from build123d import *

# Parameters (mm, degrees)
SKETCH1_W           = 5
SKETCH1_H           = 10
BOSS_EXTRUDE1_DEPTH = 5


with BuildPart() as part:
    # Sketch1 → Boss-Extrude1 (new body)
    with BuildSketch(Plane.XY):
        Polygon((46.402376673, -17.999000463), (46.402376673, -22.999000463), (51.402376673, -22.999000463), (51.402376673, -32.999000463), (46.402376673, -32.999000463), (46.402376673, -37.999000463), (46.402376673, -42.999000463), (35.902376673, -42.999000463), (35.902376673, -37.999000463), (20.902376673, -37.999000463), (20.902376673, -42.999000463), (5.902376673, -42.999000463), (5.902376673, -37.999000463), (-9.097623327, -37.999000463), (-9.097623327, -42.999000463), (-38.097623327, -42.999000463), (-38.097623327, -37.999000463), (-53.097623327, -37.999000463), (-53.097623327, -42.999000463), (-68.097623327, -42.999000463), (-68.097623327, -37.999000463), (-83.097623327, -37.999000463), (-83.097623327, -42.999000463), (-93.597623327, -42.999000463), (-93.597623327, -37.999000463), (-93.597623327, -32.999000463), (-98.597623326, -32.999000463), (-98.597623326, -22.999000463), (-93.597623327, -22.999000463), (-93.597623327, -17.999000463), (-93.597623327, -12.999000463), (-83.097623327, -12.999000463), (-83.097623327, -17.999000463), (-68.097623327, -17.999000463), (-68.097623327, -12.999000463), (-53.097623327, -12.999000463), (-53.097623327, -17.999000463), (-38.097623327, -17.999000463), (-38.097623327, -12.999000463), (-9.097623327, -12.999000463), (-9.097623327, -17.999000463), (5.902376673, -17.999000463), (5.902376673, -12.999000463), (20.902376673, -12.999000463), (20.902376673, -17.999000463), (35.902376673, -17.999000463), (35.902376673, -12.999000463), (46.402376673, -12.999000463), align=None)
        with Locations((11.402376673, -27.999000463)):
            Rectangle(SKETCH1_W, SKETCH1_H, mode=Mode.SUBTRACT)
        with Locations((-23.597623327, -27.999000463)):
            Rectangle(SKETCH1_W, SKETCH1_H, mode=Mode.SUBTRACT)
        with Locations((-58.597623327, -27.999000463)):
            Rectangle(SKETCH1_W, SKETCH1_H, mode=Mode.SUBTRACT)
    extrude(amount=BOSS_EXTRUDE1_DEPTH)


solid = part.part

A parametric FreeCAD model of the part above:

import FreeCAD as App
import Part
import Sketcher
from FreeCAD import Vector
Q = App.Units.Quantity

doc = App.newDocument("Part")
body = doc.addObject("PartDesign::Body", "Body")

# Sketch on XY plane
sketch1 = body.newObject("Sketcher::SketchObject", "Sketch")
sketch1.AttachmentSupport = (doc.getObject("XY_Plane"), [""])
sketch1.MapMode = "FlatFace"
sketch1.addGeometry([
    Part.LineSegment(Vector(46.4, -23, 0), Vector(46.4, -13, 0)),  # 0
    Part.LineSegment(Vector(46.4, -13, 0), Vector(35.9, -13, 0)),  # 1
    Part.LineSegment(Vector(35.9, -13, 0), Vector(35.9, -18, 0)),  # 2
    Part.LineSegment(Vector(35.9, -18, 0), Vector(20.9, -18, 0)),  # 3
    Part.LineSegment(Vector(20.9, -18, 0), Vector(20.9, -13, 0)),  # 4
    Part.LineSegment(Vector(20.9, -13, 0), Vector(5.9, -13, 0)),  # 5
    Part.LineSegment(Vector(5.9, -13, 0), Vector(5.9, -18, 0)),  # 6
    Part.LineSegment(Vector(5.9, -18, 0), Vector(-9.1, -18, 0)),  # 7
    Part.LineSegment(Vector(-9.1, -18, 0), Vector(-9.1, -13, 0)),  # 8
    Part.LineSegment(Vector(-9.1, -13, 0), Vector(-38.1, -13, 0)),  # 9
    Part.LineSegment(Vector(-38.1, -13, 0), Vector(-38.1, -18, 0)),  # 10
    Part.LineSegment(Vector(-38.1, -18, 0), Vector(-53.1, -18, 0)),  # 11
    Part.LineSegment(Vector(-53.1, -18, 0), Vector(-53.1, -13, 0)),  # 12
    Part.LineSegment(Vector(-53.1, -13, 0), Vector(-68.1, -13, 0)),  # 13
    Part.LineSegment(Vector(-68.1, -13, 0), Vector(-68.1, -18, 0)),  # 14
    Part.LineSegment(Vector(-68.1, -18, 0), Vector(-83.1, -18, 0)),  # 15
    Part.LineSegment(Vector(-83.1, -18, 0), Vector(-83.1, -13, 0)),  # 16
    Part.LineSegment(Vector(-83.1, -13, 0), Vector(-93.6, -13, 0)),  # 17
    Part.LineSegment(Vector(-93.6, -13, 0), Vector(-93.6, -23, 0)),  # 18
    Part.LineSegment(Vector(-93.6, -23, 0), Vector(-98.6, -23, 0)),  # 19
    Part.LineSegment(Vector(-98.6, -23, 0), Vector(-98.6, -33, 0)),  # 20
    Part.LineSegment(Vector(-98.6, -33, 0), Vector(-93.6, -33, 0)),  # 21
    Part.LineSegment(Vector(-93.6, -33, 0), Vector(-93.6, -43, 0)),  # 22
    Part.LineSegment(Vector(-93.6, -43, 0), Vector(-83.1, -43, 0)),  # 23
    Part.LineSegment(Vector(-83.1, -43, 0), Vector(-83.1, -38, 0)),  # 24
    Part.LineSegment(Vector(-83.1, -38, 0), Vector(-68.1, -38, 0)),  # 25
    Part.LineSegment(Vector(-68.1, -38, 0), Vector(-68.1, -43, 0)),  # 26
    Part.LineSegment(Vector(-68.1, -43, 0), Vector(-53.1, -43, 0)),  # 27
    Part.LineSegment(Vector(-53.1, -43, 0), Vector(-53.1, -38, 0)),  # 28
    Part.LineSegment(Vector(-53.1, -38, 0), Vector(-38.1, -38, 0)),  # 29
    Part.LineSegment(Vector(-38.1, -38, 0), Vector(-38.1, -43, 0)),  # 30
    Part.LineSegment(Vector(-38.1, -43, 0), Vector(-9.1, -43, 0)),  # 31
    Part.LineSegment(Vector(-9.1, -43, 0), Vector(-9.1, -38, 0)),  # 32
    Part.LineSegment(Vector(-9.1, -38, 0), Vector(5.9, -38, 0)),  # 33
    Part.LineSegment(Vector(5.9, -38, 0), Vector(5.9, -43, 0)),  # 34
    Part.LineSegment(Vector(5.9, -43, 0), Vector(20.9, -43, 0)),  # 35
    Part.LineSegment(Vector(20.9, -43, 0), Vector(20.9, -38, 0)),  # 36
    Part.LineSegment(Vector(20.9, -38, 0), Vector(35.9, -38, 0)),  # 37
    Part.LineSegment(Vector(35.9, -38, 0), Vector(35.9, -43, 0)),  # 38
    Part.LineSegment(Vector(35.9, -43, 0), Vector(46.4, -43, 0)),  # 39
    Part.LineSegment(Vector(46.4, -43, 0), Vector(46.4, -33, 0)),  # 40
    Part.LineSegment(Vector(46.4, -33, 0), Vector(51.4, -33, 0)),  # 41
    Part.LineSegment(Vector(51.4, -33, 0), Vector(51.4, -23, 0)),  # 42
    Part.LineSegment(Vector(51.4, -23, 0), Vector(46.4, -23, 0)),  # 43
    Part.LineSegment(Vector(8.9, -33, 0), Vector(8.9, -23, 0)),  # 44
    Part.LineSegment(Vector(8.9, -23, 0), Vector(13.9, -23, 0)),  # 45
    Part.LineSegment(Vector(13.9, -23, 0), Vector(13.9, -33, 0)),  # 46
    Part.LineSegment(Vector(13.9, -33, 0), Vector(8.9, -33, 0)),  # 47
    Part.LineSegment(Vector(-26.1, -33, 0), Vector(-26.1, -23, 0)),  # 48
    Part.LineSegment(Vector(-26.1, -23, 0), Vector(-21.1, -23, 0)),  # 49
    Part.LineSegment(Vector(-21.1, -23, 0), Vector(-21.1, -33, 0)),  # 50
    Part.LineSegment(Vector(-21.1, -33, 0), Vector(-26.1, -33, 0)),  # 51
    Part.LineSegment(Vector(-61.1, -33, 0), Vector(-61.1, -23, 0)),  # 52
    Part.LineSegment(Vector(-61.1, -23, 0), Vector(-56.1, -23, 0)),  # 53
    Part.LineSegment(Vector(-56.1, -23, 0), Vector(-56.1, -33, 0)),  # 54
    Part.LineSegment(Vector(-56.1, -33, 0), Vector(-61.1, -33, 0)),  # 55
], False)
sketch1.addConstraint([
    Sketcher.Constraint("Coincident", 0, 2, 1, 1),
    Sketcher.Constraint("Coincident", 1, 2, 2, 1),
    Sketcher.Constraint("Coincident", 2, 2, 3, 1),
    Sketcher.Constraint("Coincident", 3, 2, 4, 1),
    Sketcher.Constraint("Coincident", 4, 2, 5, 1),
    Sketcher.Constraint("Coincident", 5, 2, 6, 1),
    Sketcher.Constraint("Coincident", 6, 2, 7, 1),
    Sketcher.Constraint("Coincident", 7, 2, 8, 1),
    Sketcher.Constraint("Coincident", 8, 2, 9, 1),
    Sketcher.Constraint("Coincident", 9, 2, 10, 1),
    Sketcher.Constraint("Coincident", 10, 2, 11, 1),
    Sketcher.Constraint("Coincident", 11, 2, 12, 1),
    Sketcher.Constraint("Coincident", 12, 2, 13, 1),
    Sketcher.Constraint("Coincident", 13, 2, 14, 1),
    Sketcher.Constraint("Coincident", 14, 2, 15, 1),
    Sketcher.Constraint("Coincident", 15, 2, 16, 1),
    Sketcher.Constraint("Coincident", 16, 2, 17, 1),
    Sketcher.Constraint("Coincident", 17, 2, 18, 1),
    Sketcher.Constraint("Coincident", 18, 2, 19, 1),
    Sketcher.Constraint("Coincident", 19, 2, 20, 1),
    Sketcher.Constraint("Coincident", 20, 2, 21, 1),
    Sketcher.Constraint("Coincident", 21, 2, 22, 1),
    Sketcher.Constraint("Coincident", 22, 2, 23, 1),
    Sketcher.Constraint("Coincident", 23, 2, 24, 1),
    Sketcher.Constraint("Coincident", 24, 2, 25, 1),
    Sketcher.Constraint("Coincident", 25, 2, 26, 1),
    Sketcher.Constraint("Coincident", 26, 2, 27, 1),
    Sketcher.Constraint("Coincident", 27, 2, 28, 1),
    Sketcher.Constraint("Coincident", 28, 2, 29, 1),
    Sketcher.Constraint("Coincident", 29, 2, 30, 1),
    Sketcher.Constraint("Coincident", 30, 2, 31, 1),
    Sketcher.Constraint("Coincident", 31, 2, 32, 1),
    Sketcher.Constraint("Coincident", 32, 2, 33, 1),
    Sketcher.Constraint("Coincident", 33, 2, 34, 1),
    Sketcher.Constraint("Coincident", 34, 2, 35, 1),
    Sketcher.Constraint("Coincident", 35, 2, 36, 1),
    Sketcher.Constraint("Coincident", 36, 2, 37, 1),
    Sketcher.Constraint("Coincident", 37, 2, 38, 1),
    Sketcher.Constraint("Coincident", 38, 2, 39, 1),
    Sketcher.Constraint("Coincident", 39, 2, 40, 1),
    Sketcher.Constraint("Coincident", 40, 2, 41, 1),
    Sketcher.Constraint("Coincident", 41, 2, 42, 1),
    Sketcher.Constraint("Coincident", 42, 2, 43, 1),
    Sketcher.Constraint("Coincident", 43, 2, 0, 1),
    Sketcher.Constraint("Coincident", 44, 2, 45, 1),
    Sketcher.Constraint("Coincident", 45, 2, 46, 1),
    Sketcher.Constraint("Coincident", 46, 2, 47, 1),
    Sketcher.Constraint("Coincident", 47, 2, 44, 1),
    Sketcher.Constraint("Coincident", 48, 2, 49, 1),
    Sketcher.Constraint("Coincident", 49, 2, 50, 1),
    Sketcher.Constraint("Coincident", 50, 2, 51, 1),
    Sketcher.Constraint("Coincident", 51, 2, 48, 1),
    Sketcher.Constraint("Coincident", 52, 2, 53, 1),
    Sketcher.Constraint("Coincident", 53, 2, 54, 1),
    Sketcher.Constraint("Coincident", 54, 2, 55, 1),
    Sketcher.Constraint("Coincident", 55, 2, 52, 1),
    Sketcher.Constraint("Vertical", 0),
    Sketcher.Constraint("Horizontal", 1),
    Sketcher.Constraint("Vertical", 2),
    Sketcher.Constraint("Horizontal", 3),
    Sketcher.Constraint("Vertical", 4),
    Sketcher.Constraint("Horizontal", 5),
    Sketcher.Constraint("Vertical", 6),
    Sketcher.Constraint("Horizontal", 7),
    Sketcher.Constraint("Vertical", 8),
    Sketcher.Constraint("Horizontal", 9),
    Sketcher.Constraint("Vertical", 10),
    Sketcher.Constraint("Horizontal", 11),
    Sketcher.Constraint("Vertical", 12),
    Sketcher.Constraint("Horizontal", 13),
    Sketcher.Constraint("Vertical", 14),
    Sketcher.Constraint("Horizontal", 15),
    Sketcher.Constraint("Vertical", 16),
    Sketcher.Constraint("Horizontal", 17),
    Sketcher.Constraint("Vertical", 18),
    Sketcher.Constraint("Horizontal", 19),
    Sketcher.Constraint("Vertical", 20),
    Sketcher.Constraint("Horizontal", 21),
    Sketcher.Constraint("Vertical", 22),
    Sketcher.Constraint("Horizontal", 23),
    Sketcher.Constraint("Vertical", 24),
    Sketcher.Constraint("Horizontal", 25),
    Sketcher.Constraint("Vertical", 26),
    Sketcher.Constraint("Horizontal", 27),
    Sketcher.Constraint("Vertical", 28),
    Sketcher.Constraint("Horizontal", 29),
    Sketcher.Constraint("Vertical", 30),
    Sketcher.Constraint("Horizontal", 31),
    Sketcher.Constraint("Vertical", 32),
    Sketcher.Constraint("Horizontal", 33),
    Sketcher.Constraint("Vertical", 34),
    Sketcher.Constraint("Horizontal", 35),
    Sketcher.Constraint("Vertical", 36),
    Sketcher.Constraint("Horizontal", 37),
    Sketcher.Constraint("Vertical", 38),
    Sketcher.Constraint("Horizontal", 39),
    Sketcher.Constraint("Vertical", 40),
    Sketcher.Constraint("Horizontal", 41),
    Sketcher.Constraint("Vertical", 42),
    Sketcher.Constraint("Horizontal", 43),
    Sketcher.Constraint("Vertical", 44),
    Sketcher.Constraint("Horizontal", 45),
    Sketcher.Constraint("Vertical", 46),
    Sketcher.Constraint("Horizontal", 47),
    Sketcher.Constraint("Vertical", 48),
    Sketcher.Constraint("Horizontal", 49),
    Sketcher.Constraint("Vertical", 50),
    Sketcher.Constraint("Horizontal", 51),
    Sketcher.Constraint("Vertical", 52),
    Sketcher.Constraint("Horizontal", 53),
    Sketcher.Constraint("Vertical", 54),
    Sketcher.Constraint("Horizontal", 55),
    Sketcher.Constraint("Horizontal", 1, 2, 4, 2),
    Sketcher.Constraint("Horizontal", 3, 2, 6, 2),
    Sketcher.Constraint("Horizontal", 5, 2, 8, 2),
    Sketcher.Constraint("Horizontal", 7, 2, 10, 2),
    Sketcher.Constraint("Horizontal", 9, 2, 12, 2),
    Sketcher.Constraint("Horizontal", 11, 2, 14, 2),
    Sketcher.Constraint("Horizontal", 13, 2, 16, 2),
    Sketcher.Constraint("Horizontal", 23, 2, 26, 2),
    Sketcher.Constraint("Horizontal", 25, 2, 28, 2),
    Sketcher.Constraint("Horizontal", 27, 2, 30, 2),
    Sketcher.Constraint("Horizontal", 29, 2, 32, 2),
    Sketcher.Constraint("Horizontal", 31, 2, 34, 2),
    Sketcher.Constraint("Horizontal", 33, 2, 36, 2),
    Sketcher.Constraint("Horizontal", 35, 2, 38, 2),
    Sketcher.Constraint("Horizontal", 21, 2, 40, 2),
    Sketcher.Constraint("Horizontal", 19, 2, 42, 2),
    Sketcher.Constraint("Horizontal", 43, 2, 44, 2),
    Sketcher.Constraint("Horizontal", 41, 2, 46, 2),
    Sketcher.Constraint("Horizontal", 45, 2, 48, 2),
    Sketcher.Constraint("Horizontal", 47, 2, 50, 2),
    Sketcher.Constraint("Horizontal", 49, 2, 52, 2),
    Sketcher.Constraint("Horizontal", 51, 2, 54, 2),
    Sketcher.Constraint("Vertical", 18, 2, 21, 2),
    Sketcher.Constraint("Vertical", 16, 2, 23, 2),
    Sketcher.Constraint("Vertical", 14, 2, 25, 2),
    Sketcher.Constraint("Vertical", 12, 2, 27, 2),
    Sketcher.Constraint("Vertical", 10, 2, 29, 2),
    Sketcher.Constraint("Vertical", 8, 2, 31, 2),
    Sketcher.Constraint("Vertical", 6, 2, 33, 2),
    Sketcher.Constraint("Vertical", 4, 2, 35, 2),
    Sketcher.Constraint("Vertical", 2, 2, 37, 2),
    Sketcher.Constraint("Vertical", 0, 2, 39, 2),
    Sketcher.Constraint("Equal", 3, 5),
    Sketcher.Constraint("Equal", 5, 7),
    Sketcher.Constraint("Equal", 7, 11),
    Sketcher.Constraint("Equal", 11, 13),
    Sketcher.Constraint("Equal", 13, 15),
    Sketcher.Constraint("Equal", 1, 17),
    Sketcher.Constraint("Equal", 21, 41),
    Sketcher.Constraint("Equal", 43, 45),
    Sketcher.Constraint("Equal", 47, 49),
    Sketcher.Constraint("Equal", 51, 53),
    Sketcher.Constraint("Equal", 55, 2),
    Sketcher.Constraint("Equal", 18, 20),
    Sketcher.Constraint("Equal", 20, 22),
    Sketcher.Constraint("Equal", 16, 24),
    Sketcher.Constraint("DistanceX", 3, 2, 3, 1, Q("15 mm")),
    Sketcher.Constraint("DistanceX", 9, 2, 9, 1, Q("29 mm")),
    Sketcher.Constraint("DistanceX", 19, 2, 19, 1, Q("5 mm")),
    Sketcher.Constraint("DistanceY", 0, 1, 0, 2, Q("10 mm")),
    Sketcher.Constraint("DistanceX", 1, 2, 1, 1, Q("10.5 mm")),
    Sketcher.Constraint("DistanceX", 6, 2, 44, 2, Q("3 mm")),
    Sketcher.Constraint("DistanceX", 10, 2, 48, 2, Q("12 mm")),
    Sketcher.Constraint("DistanceX", 14, 2, 52, 2, Q("7 mm")),
    Sketcher.Constraint("DistanceY", 0, 2, -1, 1, Q("12.999 mm")),
    Sketcher.Constraint("DistanceX", -1, 1, 0, 2, Q("46.402377 mm")),
])
pad1 = body.newObject("PartDesign::Pad", "Pad")
pad1.Profile = sketch1
pad1.Length = 5

doc.recompute()
